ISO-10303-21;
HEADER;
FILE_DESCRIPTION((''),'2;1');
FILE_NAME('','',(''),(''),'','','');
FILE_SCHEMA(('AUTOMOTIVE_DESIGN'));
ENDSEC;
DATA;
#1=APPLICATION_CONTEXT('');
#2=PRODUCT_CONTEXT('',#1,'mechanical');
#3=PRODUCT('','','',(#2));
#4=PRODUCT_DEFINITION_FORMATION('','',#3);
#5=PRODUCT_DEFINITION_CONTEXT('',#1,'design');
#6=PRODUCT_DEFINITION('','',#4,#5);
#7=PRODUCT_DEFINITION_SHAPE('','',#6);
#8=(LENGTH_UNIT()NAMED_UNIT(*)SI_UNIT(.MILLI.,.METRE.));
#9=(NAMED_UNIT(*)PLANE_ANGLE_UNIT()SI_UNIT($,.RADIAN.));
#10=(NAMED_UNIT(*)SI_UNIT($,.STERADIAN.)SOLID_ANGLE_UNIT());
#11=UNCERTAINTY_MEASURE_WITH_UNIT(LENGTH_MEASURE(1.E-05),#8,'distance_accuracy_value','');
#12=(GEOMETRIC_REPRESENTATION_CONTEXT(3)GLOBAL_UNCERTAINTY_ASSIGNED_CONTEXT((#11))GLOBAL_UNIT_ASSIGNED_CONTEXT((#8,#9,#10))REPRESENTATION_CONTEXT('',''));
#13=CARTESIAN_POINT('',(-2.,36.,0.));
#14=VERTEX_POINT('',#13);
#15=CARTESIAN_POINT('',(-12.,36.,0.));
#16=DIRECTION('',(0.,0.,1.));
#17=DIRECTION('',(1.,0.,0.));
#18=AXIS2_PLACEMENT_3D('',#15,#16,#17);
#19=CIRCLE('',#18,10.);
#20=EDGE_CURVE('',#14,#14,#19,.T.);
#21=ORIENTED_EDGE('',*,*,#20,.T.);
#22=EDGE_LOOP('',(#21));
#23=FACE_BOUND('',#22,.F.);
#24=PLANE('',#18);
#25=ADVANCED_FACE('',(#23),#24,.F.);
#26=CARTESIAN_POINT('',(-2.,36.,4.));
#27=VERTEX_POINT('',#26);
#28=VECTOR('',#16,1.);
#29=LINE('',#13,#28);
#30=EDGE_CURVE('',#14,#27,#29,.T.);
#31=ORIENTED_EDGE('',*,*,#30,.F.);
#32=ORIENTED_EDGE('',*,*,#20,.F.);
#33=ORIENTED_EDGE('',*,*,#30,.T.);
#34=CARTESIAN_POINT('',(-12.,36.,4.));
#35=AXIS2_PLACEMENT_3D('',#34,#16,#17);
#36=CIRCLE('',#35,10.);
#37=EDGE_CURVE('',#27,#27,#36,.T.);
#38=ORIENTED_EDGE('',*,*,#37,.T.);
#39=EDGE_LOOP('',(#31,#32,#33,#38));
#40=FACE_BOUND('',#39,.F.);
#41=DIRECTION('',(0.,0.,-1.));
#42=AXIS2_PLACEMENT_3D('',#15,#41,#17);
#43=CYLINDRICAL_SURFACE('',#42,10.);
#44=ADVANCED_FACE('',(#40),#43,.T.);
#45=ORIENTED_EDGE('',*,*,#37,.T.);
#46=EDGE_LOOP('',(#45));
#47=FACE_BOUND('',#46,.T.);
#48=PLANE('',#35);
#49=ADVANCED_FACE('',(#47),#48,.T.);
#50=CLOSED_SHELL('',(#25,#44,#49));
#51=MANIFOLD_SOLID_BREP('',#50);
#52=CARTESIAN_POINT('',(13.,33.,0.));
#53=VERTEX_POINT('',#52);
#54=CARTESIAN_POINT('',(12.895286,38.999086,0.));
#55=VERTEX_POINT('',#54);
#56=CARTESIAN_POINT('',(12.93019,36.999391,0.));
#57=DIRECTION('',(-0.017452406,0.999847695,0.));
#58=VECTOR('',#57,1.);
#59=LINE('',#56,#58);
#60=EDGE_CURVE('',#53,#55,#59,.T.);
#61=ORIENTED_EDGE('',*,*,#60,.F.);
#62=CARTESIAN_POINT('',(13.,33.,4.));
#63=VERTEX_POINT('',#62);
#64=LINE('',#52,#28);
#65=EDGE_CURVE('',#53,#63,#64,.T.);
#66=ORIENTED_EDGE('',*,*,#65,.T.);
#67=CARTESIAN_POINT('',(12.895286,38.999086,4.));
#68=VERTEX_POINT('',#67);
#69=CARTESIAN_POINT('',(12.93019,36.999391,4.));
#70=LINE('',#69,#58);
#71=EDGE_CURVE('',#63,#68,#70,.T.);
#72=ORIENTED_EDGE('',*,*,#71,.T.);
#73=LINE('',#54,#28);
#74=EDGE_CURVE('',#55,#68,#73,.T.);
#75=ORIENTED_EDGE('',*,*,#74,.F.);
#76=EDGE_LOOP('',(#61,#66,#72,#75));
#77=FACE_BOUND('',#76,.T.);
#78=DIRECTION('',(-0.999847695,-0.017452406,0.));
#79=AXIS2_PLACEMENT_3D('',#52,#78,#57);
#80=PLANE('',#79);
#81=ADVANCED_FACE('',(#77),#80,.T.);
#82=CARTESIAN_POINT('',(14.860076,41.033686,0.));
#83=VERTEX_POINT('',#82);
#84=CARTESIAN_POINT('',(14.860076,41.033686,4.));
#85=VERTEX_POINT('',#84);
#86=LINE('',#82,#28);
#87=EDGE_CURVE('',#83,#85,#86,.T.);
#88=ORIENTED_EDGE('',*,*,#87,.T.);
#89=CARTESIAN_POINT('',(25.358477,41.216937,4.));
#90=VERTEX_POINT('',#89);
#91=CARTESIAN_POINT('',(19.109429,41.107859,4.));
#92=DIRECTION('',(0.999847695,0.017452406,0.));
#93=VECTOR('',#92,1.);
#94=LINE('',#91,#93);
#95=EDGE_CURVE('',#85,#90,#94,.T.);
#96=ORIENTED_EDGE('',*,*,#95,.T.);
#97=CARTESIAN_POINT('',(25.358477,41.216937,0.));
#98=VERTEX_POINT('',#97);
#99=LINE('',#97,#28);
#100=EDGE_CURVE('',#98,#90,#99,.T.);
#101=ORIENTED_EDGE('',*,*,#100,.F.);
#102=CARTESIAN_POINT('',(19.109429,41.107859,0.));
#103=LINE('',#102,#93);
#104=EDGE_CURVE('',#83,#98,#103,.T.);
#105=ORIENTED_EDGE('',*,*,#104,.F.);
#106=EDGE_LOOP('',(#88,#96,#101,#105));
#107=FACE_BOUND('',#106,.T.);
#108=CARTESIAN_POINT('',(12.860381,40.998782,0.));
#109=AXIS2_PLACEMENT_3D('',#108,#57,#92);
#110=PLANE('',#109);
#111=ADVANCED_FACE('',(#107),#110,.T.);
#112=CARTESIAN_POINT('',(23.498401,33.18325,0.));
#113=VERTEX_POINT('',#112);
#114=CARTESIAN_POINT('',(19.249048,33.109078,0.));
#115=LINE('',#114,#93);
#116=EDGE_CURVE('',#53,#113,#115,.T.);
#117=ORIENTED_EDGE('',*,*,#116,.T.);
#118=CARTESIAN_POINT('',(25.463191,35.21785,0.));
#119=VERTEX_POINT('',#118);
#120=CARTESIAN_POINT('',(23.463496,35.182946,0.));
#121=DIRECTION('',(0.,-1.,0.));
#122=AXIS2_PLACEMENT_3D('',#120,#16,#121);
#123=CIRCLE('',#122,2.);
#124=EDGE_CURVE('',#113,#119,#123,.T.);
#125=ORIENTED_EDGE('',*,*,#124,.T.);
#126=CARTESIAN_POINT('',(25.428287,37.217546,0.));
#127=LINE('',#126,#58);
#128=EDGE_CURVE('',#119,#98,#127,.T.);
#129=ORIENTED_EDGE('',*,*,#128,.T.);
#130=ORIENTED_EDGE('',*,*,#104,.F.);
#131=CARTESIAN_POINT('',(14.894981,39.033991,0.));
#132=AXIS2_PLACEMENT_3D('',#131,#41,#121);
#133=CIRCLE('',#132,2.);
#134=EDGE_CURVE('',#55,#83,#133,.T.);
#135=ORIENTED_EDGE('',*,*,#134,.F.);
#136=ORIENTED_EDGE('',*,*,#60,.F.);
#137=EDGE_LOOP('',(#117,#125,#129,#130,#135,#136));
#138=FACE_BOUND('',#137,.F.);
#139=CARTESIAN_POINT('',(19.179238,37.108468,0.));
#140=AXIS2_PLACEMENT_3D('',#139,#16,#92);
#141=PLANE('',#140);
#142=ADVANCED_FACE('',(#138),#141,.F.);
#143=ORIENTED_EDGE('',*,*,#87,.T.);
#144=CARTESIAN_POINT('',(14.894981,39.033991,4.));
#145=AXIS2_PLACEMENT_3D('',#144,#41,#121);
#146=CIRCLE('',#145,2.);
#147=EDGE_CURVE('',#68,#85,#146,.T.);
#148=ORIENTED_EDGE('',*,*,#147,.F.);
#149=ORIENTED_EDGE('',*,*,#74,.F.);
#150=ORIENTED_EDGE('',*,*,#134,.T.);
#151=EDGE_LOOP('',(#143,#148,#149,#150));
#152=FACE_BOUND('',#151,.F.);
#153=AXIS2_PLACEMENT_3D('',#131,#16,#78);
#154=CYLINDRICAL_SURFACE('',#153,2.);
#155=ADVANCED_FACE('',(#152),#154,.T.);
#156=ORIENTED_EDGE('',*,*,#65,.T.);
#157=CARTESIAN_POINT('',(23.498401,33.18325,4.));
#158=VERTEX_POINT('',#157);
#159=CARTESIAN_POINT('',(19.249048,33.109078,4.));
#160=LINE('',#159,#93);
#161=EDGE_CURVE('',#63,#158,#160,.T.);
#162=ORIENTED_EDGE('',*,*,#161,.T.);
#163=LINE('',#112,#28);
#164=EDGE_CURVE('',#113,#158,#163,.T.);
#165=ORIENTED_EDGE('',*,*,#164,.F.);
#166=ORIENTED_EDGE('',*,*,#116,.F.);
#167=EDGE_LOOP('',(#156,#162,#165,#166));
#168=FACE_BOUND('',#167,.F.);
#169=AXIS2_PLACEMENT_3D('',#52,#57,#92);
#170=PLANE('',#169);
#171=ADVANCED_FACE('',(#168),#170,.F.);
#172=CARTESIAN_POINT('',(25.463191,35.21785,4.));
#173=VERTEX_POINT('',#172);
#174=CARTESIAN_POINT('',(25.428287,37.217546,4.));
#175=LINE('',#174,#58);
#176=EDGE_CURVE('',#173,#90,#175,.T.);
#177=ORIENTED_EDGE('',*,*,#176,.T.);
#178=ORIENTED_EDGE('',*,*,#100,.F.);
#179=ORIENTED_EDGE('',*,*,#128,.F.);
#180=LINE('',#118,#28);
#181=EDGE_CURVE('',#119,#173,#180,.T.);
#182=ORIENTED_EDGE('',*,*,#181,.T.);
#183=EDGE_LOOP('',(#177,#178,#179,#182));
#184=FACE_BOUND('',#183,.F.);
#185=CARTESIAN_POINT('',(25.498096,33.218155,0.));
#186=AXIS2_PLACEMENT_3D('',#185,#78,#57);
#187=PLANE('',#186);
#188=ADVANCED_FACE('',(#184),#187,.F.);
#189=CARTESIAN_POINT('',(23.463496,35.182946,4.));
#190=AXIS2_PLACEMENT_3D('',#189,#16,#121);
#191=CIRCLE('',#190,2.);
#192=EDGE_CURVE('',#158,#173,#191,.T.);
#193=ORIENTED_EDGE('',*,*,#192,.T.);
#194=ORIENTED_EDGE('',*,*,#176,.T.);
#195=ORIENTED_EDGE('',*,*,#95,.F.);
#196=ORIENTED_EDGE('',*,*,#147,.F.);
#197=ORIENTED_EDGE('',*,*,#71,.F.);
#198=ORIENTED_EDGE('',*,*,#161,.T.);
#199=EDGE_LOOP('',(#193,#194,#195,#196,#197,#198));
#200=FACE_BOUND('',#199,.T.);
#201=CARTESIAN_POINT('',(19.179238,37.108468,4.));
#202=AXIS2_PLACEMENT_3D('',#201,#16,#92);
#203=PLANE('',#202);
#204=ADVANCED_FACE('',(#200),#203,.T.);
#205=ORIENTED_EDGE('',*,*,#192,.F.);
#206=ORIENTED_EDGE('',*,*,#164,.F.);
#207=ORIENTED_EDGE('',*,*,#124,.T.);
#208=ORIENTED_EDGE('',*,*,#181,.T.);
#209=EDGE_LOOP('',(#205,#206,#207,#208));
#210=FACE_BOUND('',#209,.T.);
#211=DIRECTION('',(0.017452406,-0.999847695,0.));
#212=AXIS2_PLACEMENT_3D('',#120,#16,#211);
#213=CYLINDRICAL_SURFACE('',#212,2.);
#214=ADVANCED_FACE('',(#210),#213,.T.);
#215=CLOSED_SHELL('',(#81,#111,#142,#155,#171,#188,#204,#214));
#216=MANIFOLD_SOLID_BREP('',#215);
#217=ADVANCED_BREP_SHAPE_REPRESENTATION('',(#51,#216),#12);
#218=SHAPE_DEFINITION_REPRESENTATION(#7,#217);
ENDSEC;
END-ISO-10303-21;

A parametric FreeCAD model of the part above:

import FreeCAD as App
import Part
import Sketcher


def edges_at(feature, points):
    """Names of the edges that pass closest to the given points."""
    edges = feature.Shape.Edges
    near = lambda p: min(range(len(edges)), key=lambda i: edges[i].distToShape(Part.Vertex(*p))[0])
    return sorted({f"Edge{near(p) + 1}" for p in points})

doc = App.newDocument("Part")
body = doc.addObject("PartDesign::Body", "Body")

# Sketch on XY plane
sketch1 = body.newObject("Sketcher::SketchObject", "Sketch")
sketch1.AttachmentSupport = (doc.getObject("XY_Plane"), [""])
sketch1.MapMode = "FlatFace"
sketch1.addGeometry(Part.Circle(App.Vector(-12, 36, 0), App.Vector(0, 0, 1), 10), False)
sketch1.addConstraint(Sketcher.Constraint("Diameter", 0, 20.0))
sketch1.addConstraint(Sketcher.Constraint("DistanceX", 0, 3, -1, 1, 12.0))
sketch1.addConstraint(Sketcher.Constraint("DistanceY", -1, 1, 0, 3, 36.0))
pad1 = body.newObject("PartDesign::Pad", "Pad")
pad1.Profile = sketch1
pad1.Length = 4
body2 = doc.addObject("PartDesign::Body", "Body001")

# Sketch on XY plane
sketch2 = body2.newObject("Sketcher::SketchObject", "Sketch001")
sketch2.AttachmentSupport = (doc.getObject("XY_Plane001"), [""])
sketch2.MapMode = "FlatFace"
sketch2.addGeometry(Part.LineSegment(App.Vector(0, 8, 0), App.Vector(0, 0, 0)), False)
sketch2.addGeometry(Part.LineSegment(App.Vector(0, 0, 0), App.Vector(12.5, 0, 0)), False)
sketch2.addGeometry(Part.LineSegment(App.Vector(12.5, 0, 0), App.Vector(12.5, 8, 0)), False)
sketch2.addGeometry(Part.LineSegment(App.Vector(12.5, 8, 0), App.Vector(0, 8, 0)), False)
sketch2.addConstraint(Sketcher.Constraint("Coincident", 0, 2, 1, 1))
sketch2.addConstraint(Sketcher.Constraint("Coincident", 1, 2, 2, 1))
sketch2.addConstraint(Sketcher.Constraint("Coincident", 2, 2, 3, 1))
sketch2.addConstraint(Sketcher.Constraint("Coincident", 3, 2, 0, 1))
sketch2.addConstraint(Sketcher.Constraint("Vertical", 0))
sketch2.addConstraint(Sketcher.Constraint("Horizontal", 1))
sketch2.addConstraint(Sketcher.Constraint("Vertical", 2))
sketch2.addConstraint(Sketcher.Constraint("Horizontal", 3))
sketch2.addConstraint(Sketcher.Constraint("Coincident", 0, 2, -1, 1))
sketch2.addConstraint(Sketcher.Constraint("DistanceY", 0, 2, 0, 1, 8.0))
sketch2.addConstraint(Sketcher.Constraint("DistanceX", 1, 1, 1, 2, 12.5))
pad2 = body2.newObject("PartDesign::Pad", "Pad001")
pad2.Profile = sketch2
pad2.Length = 4
body3 = doc.addObject("PartDesign::Body", "Body002")
body3.AllowCompound = True
doc.recompute()

body2.Placement = App.Placement(App.Vector(13, 33, 0), App.Rotation(App.Vector(0, 0, 1), 1))
boolean = body3.newObject("PartDesign::Boolean", "Boolean")
boolean.Type = "Fuse"
boolean.addObjects([body2])
doc.recompute()

boolean2 = body3.newObject("PartDesign::Boolean", "Boolean001")
boolean2.Type = "Fuse"
boolean2.addObjects([body])
doc.recompute()

fillet = body3.newObject("PartDesign::Fillet", "Fillet")
fillet.Base = (boolean2, edges_at(boolean2, [(12.86, 40.999, 2), (25.498, 33.218, 2)]))
fillet.Radius = 2

doc.recompute()
